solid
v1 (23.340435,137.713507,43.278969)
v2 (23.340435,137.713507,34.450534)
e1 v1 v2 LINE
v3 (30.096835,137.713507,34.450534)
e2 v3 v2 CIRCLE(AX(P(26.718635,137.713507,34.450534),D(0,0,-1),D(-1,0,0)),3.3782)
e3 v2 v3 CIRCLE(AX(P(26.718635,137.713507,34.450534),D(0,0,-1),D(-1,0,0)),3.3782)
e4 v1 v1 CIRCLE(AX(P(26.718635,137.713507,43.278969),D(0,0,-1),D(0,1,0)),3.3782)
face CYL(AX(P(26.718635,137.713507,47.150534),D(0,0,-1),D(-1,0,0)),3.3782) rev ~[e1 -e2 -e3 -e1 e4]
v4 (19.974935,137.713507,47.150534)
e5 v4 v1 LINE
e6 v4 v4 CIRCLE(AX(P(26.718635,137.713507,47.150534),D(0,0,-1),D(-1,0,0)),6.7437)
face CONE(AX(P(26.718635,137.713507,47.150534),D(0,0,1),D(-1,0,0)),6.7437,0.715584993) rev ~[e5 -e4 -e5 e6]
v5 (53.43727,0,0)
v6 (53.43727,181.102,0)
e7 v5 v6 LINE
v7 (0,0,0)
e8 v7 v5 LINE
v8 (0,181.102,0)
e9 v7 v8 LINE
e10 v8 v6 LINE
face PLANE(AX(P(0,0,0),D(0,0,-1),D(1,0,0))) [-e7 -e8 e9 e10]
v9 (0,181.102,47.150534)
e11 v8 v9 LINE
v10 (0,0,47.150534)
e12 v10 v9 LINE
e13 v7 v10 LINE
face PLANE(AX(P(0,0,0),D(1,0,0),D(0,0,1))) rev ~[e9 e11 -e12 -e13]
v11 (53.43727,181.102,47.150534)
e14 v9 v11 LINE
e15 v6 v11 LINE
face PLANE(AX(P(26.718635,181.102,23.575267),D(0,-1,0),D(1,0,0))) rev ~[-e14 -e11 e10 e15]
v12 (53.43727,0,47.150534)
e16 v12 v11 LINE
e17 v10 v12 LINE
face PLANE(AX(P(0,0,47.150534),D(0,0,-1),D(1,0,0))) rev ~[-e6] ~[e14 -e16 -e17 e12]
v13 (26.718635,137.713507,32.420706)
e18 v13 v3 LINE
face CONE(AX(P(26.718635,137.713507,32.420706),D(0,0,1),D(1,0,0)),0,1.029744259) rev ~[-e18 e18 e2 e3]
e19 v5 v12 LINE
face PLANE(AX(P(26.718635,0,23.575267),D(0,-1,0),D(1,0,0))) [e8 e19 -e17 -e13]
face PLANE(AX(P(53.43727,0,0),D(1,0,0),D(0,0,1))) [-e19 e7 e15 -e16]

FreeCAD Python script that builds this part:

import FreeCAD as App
import Part
import Sketcher
from FreeCAD import Vector
Q = App.Units.Quantity

doc = App.newDocument("Part")
body = doc.addObject("PartDesign::Body", "Body")

# Sketch on XZ plane
sketch1 = body.newObject("Sketcher::SketchObject", "Sketch")
sketch1.AttachmentSupport = (doc.getObject("XZ_Plane"), [""])
sketch1.MapMode = "FlatFace"
sketch1.addGeometry([
    Part.LineSegment(Vector(0, 47.150534, 0), Vector(0, 0, 0)),
    Part.LineSegment(Vector(0, 0, 0), Vector(53.43727, 0, 0)),
    Part.LineSegment(Vector(53.43727, 0, 0), Vector(53.43727, 47.150534, 0)),
    Part.LineSegment(Vector(53.43727, 47.150534, 0), Vector(0, 47.150534, 0)),
], False)
sketch1.addConstraint([
    Sketcher.Constraint("Coincident", 0, 2, 1, 1),
    Sketcher.Constraint("Coincident", 1, 2, 2, 1),
    Sketcher.Constraint("Coincident", 2, 2, 3, 1),
    Sketcher.Constraint("Coincident", 3, 2, 0, 1),
    Sketcher.Constraint("Vertical", 0),
    Sketcher.Constraint("Horizontal", 1),
    Sketcher.Constraint("Vertical", 2),
    Sketcher.Constraint("Horizontal", 3),
    Sketcher.Constraint("Coincident", 0, 2, -1, 1),
    Sketcher.Constraint("DistanceX", 1, 1, 1, 2, 53.43727),
    Sketcher.Constraint("DistanceY", 0, 2, 0, 1, 47.150534),
])
pad1 = body.newObject("PartDesign::Pad", "Pad")
pad1.Profile = sketch1
pad1.Length = Q("7.13 in")
pad1.Reversed = True

# Sketch on XY plane
sketch2 = body.newObject("Sketcher::SketchObject", "Sketch001")
sketch2.AttachmentSupport = (doc.getObject("XY_Plane"), [""])
sketch2.MapMode = "FlatFace"
sketch2.AttachmentOffset = App.Placement(Vector(0, 0, 47.150534), App.Rotation())
sketch2.addGeometry(Part.Circle(Vector(26.718635, 137.713507, 0), Vector(0, 0, 1), 3.3782), False)
sketch2.addConstraint([
    Sketcher.Constraint("Diameter", 0, Q("0.266 in")),
    Sketcher.Constraint("DistanceX", -1, 1, 0, 3, 26.718635),
    Sketcher.Constraint("DistanceY", -1, 1, 0, 3, 137.713507),
])
doc.recompute()
hole = body.newObject("PartDesign::Hole", "Hole")
hole.Profile = sketch2
hole.ThreadType = "None"
hole.Diameter = Q("0.266 in")
hole.DepthType = "Dimension"
hole.Depth = Q("0.5 in")
hole.DrillPoint = "Angled"
hole.DrillPointAngle = 118
hole.HoleCutType = "Countersink"
hole.HoleCutDiameter = Q("0.531 in")
hole.HoleCutCountersinkAngle = 82

doc.recompute()
